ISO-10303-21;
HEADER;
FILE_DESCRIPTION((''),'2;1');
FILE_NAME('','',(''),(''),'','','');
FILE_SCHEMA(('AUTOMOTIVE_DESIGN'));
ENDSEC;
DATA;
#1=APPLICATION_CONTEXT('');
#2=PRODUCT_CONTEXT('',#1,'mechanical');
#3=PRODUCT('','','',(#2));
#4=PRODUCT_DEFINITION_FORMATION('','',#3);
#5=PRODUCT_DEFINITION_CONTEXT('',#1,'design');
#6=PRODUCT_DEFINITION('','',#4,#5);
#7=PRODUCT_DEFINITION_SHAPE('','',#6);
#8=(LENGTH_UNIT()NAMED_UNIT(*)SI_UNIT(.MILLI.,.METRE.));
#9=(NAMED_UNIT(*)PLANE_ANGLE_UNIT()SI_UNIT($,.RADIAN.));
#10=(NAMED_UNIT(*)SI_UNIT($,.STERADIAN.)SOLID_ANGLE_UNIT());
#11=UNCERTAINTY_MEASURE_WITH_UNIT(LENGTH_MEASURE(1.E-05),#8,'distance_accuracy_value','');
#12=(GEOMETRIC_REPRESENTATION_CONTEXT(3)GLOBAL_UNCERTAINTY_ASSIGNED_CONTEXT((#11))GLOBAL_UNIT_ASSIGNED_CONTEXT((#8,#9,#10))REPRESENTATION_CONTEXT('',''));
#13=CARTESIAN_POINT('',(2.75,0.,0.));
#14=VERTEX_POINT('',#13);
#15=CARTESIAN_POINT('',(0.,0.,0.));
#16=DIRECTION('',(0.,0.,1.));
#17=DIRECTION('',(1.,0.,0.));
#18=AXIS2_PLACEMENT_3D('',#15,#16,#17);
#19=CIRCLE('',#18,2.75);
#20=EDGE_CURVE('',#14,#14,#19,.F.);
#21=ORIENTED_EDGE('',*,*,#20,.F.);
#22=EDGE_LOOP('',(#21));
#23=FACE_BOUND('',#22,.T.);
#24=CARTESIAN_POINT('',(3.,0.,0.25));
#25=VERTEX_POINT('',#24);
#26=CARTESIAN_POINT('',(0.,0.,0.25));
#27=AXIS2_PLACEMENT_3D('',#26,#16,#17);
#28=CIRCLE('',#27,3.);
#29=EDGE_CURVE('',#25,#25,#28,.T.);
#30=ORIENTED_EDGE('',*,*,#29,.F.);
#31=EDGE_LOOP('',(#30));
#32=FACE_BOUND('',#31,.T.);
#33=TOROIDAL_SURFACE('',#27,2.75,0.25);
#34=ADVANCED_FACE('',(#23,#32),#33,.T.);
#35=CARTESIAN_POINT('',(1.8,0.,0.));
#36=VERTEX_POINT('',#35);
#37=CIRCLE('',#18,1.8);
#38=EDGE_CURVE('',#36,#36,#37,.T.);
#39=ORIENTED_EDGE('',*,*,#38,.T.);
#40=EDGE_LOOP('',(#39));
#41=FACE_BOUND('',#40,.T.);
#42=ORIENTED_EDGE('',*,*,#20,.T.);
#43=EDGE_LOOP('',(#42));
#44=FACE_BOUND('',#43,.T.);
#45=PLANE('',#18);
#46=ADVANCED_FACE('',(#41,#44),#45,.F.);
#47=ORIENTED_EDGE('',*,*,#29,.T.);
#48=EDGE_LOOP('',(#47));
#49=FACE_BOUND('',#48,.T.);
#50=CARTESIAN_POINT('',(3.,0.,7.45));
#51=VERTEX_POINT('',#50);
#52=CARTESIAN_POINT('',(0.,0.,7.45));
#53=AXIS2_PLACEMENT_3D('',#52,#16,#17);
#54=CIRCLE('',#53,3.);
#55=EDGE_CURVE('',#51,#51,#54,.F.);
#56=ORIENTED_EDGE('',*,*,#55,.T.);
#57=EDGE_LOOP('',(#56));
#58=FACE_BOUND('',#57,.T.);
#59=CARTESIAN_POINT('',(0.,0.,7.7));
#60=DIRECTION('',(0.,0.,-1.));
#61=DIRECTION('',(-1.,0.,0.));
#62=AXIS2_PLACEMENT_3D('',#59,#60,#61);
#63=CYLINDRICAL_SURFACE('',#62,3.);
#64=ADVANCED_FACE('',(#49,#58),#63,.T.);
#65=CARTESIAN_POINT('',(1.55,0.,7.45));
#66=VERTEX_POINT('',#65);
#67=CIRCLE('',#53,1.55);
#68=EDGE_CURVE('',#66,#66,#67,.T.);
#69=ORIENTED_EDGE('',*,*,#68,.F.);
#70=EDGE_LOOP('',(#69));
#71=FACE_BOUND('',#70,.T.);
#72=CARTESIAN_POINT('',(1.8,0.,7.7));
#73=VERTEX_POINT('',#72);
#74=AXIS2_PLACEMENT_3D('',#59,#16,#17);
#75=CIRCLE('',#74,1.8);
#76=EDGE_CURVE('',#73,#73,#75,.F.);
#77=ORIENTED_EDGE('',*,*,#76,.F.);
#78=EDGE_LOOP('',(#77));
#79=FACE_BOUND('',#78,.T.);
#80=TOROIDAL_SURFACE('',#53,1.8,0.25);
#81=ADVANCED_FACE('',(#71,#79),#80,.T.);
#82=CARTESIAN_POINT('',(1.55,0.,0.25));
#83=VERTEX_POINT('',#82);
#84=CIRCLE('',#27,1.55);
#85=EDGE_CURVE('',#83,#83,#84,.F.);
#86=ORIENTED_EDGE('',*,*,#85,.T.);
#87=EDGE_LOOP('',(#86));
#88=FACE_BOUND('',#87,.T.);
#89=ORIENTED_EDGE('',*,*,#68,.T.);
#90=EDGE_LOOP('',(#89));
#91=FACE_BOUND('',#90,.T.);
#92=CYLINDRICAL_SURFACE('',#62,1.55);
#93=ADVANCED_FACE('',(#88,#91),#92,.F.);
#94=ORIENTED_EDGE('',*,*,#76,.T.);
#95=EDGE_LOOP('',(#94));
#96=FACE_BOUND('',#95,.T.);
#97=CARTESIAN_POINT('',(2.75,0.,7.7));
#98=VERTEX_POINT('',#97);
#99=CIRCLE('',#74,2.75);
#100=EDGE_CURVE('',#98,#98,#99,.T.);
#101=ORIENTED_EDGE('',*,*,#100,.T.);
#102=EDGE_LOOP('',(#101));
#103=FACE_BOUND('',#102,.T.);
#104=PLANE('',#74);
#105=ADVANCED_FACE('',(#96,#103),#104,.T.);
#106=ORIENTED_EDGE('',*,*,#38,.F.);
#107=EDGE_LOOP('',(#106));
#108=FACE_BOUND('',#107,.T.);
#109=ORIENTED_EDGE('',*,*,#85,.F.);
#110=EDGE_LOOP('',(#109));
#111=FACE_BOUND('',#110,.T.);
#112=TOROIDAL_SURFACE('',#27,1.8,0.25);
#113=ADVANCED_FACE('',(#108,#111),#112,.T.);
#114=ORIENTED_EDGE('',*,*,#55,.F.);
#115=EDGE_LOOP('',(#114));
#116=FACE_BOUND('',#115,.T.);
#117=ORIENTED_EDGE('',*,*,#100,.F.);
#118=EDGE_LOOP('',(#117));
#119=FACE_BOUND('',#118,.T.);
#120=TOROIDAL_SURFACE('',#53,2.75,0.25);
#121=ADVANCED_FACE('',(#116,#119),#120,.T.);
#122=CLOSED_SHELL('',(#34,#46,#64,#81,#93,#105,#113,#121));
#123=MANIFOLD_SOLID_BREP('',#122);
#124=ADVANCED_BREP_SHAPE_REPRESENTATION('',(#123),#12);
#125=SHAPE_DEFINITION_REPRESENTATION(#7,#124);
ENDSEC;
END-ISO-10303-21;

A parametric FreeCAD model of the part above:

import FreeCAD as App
import Part
import Sketcher
from FreeCAD import Vector
Q = App.Units.Quantity


def edges_at(feature, points):
    """Names of the edges that pass closest to the given points."""
    edges = feature.Shape.Edges
    near = lambda p: min(range(len(edges)), key=lambda i: edges[i].distToShape(Part.Vertex(*p))[0])
    return sorted({f"Edge{near(p) + 1}" for p in points})

doc = App.newDocument("Part")
body = doc.addObject("PartDesign::Body", "Body")

# Sketch on XY plane
sketch1 = body.newObject("Sketcher::SketchObject", "Sketch")
sketch1.AttachmentSupport = (doc.getObject("XY_Plane"), [""])
sketch1.MapMode = "FlatFace"
sketch1.addGeometry([
    Part.Circle(Vector(0, 0, 0), Vector(0, 0, 1), 3),
    Part.Circle(Vector(0, 0, 0), Vector(0, 0, 1), 1.6),
], False)
sketch1.addConstraint([
    Sketcher.Constraint("Coincident", 0, 3, -1, 1),
    Sketcher.Constraint("Coincident", 1, 3, -1, 1),
    Sketcher.Constraint("Diameter", 0, Q("6 mm")),
    Sketcher.Constraint("Diameter", 1, Q("3.1 mm")),
])
pad1 = body.newObject("PartDesign::Pad", "Pad")
pad1.Profile = sketch1
pad1.Length = 7.7
doc.recompute()

fillet = body.newObject("PartDesign::Fillet", "Fillet")
fillet.Base = (pad1, edges_at(pad1, [
    (-3, 0, 0),
    (-3, 0, 7.7),
    (-1.55, 0, 0),
    (-1.55, 0, 7.7),
]))
fillet.Radius = 0.25

doc.recompute()
